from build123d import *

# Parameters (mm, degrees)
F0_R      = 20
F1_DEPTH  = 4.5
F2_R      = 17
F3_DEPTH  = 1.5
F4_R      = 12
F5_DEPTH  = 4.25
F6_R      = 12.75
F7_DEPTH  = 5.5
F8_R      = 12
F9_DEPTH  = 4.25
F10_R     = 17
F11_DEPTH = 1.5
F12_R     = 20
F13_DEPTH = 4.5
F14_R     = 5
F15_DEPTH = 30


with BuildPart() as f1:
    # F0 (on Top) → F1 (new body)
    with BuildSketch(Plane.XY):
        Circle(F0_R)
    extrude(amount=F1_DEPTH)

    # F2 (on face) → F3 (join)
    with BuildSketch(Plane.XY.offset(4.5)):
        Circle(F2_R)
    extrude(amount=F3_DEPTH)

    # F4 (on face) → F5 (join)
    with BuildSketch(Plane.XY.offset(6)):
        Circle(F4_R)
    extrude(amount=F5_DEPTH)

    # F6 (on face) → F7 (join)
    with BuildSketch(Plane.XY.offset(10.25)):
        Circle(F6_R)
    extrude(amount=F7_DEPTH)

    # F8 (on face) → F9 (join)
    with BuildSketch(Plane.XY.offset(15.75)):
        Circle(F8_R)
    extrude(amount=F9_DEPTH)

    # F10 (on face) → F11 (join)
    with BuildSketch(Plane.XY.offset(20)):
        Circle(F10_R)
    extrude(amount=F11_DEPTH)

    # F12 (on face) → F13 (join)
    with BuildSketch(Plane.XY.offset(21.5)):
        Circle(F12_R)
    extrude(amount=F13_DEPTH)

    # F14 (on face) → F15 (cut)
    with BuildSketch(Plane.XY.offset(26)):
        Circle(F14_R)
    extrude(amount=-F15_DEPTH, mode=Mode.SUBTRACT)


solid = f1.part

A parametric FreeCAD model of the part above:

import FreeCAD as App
import Part
import Sketcher
from FreeCAD import Vector

doc = App.newDocument("Part")
body = doc.addObject("PartDesign::Body", "Body")

sketch1 = body.newObject("Sketcher::SketchObject", "Sketch")
sketch1.AttachmentSupport = (doc.getObject("XY_Plane"), [""])
sketch1.MapMode = "FlatFace"
sketch1.addGeometry(Part.Circle(Vector(0, 0, 0), Vector(0, 0, 1), 20), False)
sketch1.addConstraint(Sketcher.Constraint("Coincident", 0, 3, -1, 1))
sketch1.addConstraint(Sketcher.Constraint("Diameter", 0, 40.0))
pad1 = body.newObject("PartDesign::Pad", "Pad")
pad1.Profile = sketch1
pad1.Length = 4.5

sketch2 = body.newObject("Sketcher::SketchObject", "Sketch001")
sketch2.AttachmentSupport = (doc.getObject("XY_Plane"), [""])
sketch2.MapMode = "FlatFace"
sketch2.AttachmentOffset = App.Placement(Vector(0, 0, 4.5), App.Rotation())
sketch2.addGeometry(Part.Circle(Vector(0, 0, 0), Vector(0, 0, 1), 17), False)
sketch2.addConstraint(Sketcher.Constraint("Coincident", 0, 3, -1, 1))
sketch2.addConstraint(Sketcher.Constraint("Diameter", 0, 34.0))
pad2 = body.newObject("PartDesign::Pad", "Pad001")
pad2.Profile = sketch2
pad2.Length = 1.5

sketch3 = body.newObject("Sketcher::SketchObject", "Sketch002")
sketch3.AttachmentSupport = (doc.getObject("XY_Plane"), [""])
sketch3.MapMode = "FlatFace"
sketch3.AttachmentOffset = App.Placement(Vector(0, 0, 6), App.Rotation())
sketch3.addGeometry(Part.Circle(Vector(0, 0, 0), Vector(0, 0, 1), 12), False)
sketch3.addConstraint(Sketcher.Constraint("Coincident", 0, 3, -1, 1))
sketch3.addConstraint(Sketcher.Constraint("Diameter", 0, 24.0))
pad3 = body.newObject("PartDesign::Pad", "Pad002")
pad3.Profile = sketch3
pad3.Length = 4.25

sketch4 = body.newObject("Sketcher::SketchObject", "Sketch003")
sketch4.AttachmentSupport = (doc.getObject("XY_Plane"), [""])
sketch4.MapMode = "FlatFace"
sketch4.AttachmentOffset = App.Placement(Vector(0, 0, 10.25), App.Rotation())
sketch4.addGeometry(Part.Circle(Vector(0, 0, 0), Vector(0, 0, 1), 12.75), False)
sketch4.addConstraint(Sketcher.Constraint("Coincident", 0, 3, -1, 1))
sketch4.addConstraint(Sketcher.Constraint("Diameter", 0, 25.5))
pad4 = body.newObject("PartDesign::Pad", "Pad003")
pad4.Profile = sketch4
pad4.Length = 5.5

sketch5 = body.newObject("Sketcher::SketchObject", "Sketch004")
sketch5.AttachmentSupport = (doc.getObject("XY_Plane"), [""])
sketch5.MapMode = "FlatFace"
sketch5.AttachmentOffset = App.Placement(Vector(0, 0, 15.75), App.Rotation())
sketch5.addGeometry(Part.Circle(Vector(0, 0, 0), Vector(0, 0, 1), 12), False)
sketch5.addConstraint(Sketcher.Constraint("Coincident", 0, 3, -1, 1))
sketch5.addConstraint(Sketcher.Constraint("Diameter", 0, 24.0))
pad5 = body.newObject("PartDesign::Pad", "Pad004")
pad5.Profile = sketch5
pad5.Length = 4.25

sketch6 = body.newObject("Sketcher::SketchObject", "Sketch005")
sketch6.AttachmentSupport = (doc.getObject("XY_Plane"), [""])
sketch6.MapMode = "FlatFace"
sketch6.AttachmentOffset = App.Placement(Vector(0, 0, 20), App.Rotation())
sketch6.addGeometry(Part.Circle(Vector(0, 0, 0), Vector(0, 0, 1), 17), False)
sketch6.addConstraint(Sketcher.Constraint("Coincident", 0, 3, -1, 1))
sketch6.addConstraint(Sketcher.Constraint("Diameter", 0, 34.0))
pad6 = body.newObject("PartDesign::Pad", "Pad005")
pad6.Profile = sketch6
pad6.Length = 1.5

sketch7 = body.newObject("Sketcher::SketchObject", "Sketch006")
sketch7.AttachmentSupport = (doc.getObject("XY_Plane"), [""])
sketch7.MapMode = "FlatFace"
sketch7.AttachmentOffset = App.Placement(Vector(0, 0, 21.5), App.Rotation())
sketch7.addGeometry(Part.Circle(Vector(0, 0, 0), Vector(0, 0, 1), 20), False)
sketch7.addConstraint(Sketcher.Constraint("Coincident", 0, 3, -1, 1))
sketch7.addConstraint(Sketcher.Constraint("Diameter", 0, 40.0))
pad7 = body.newObject("PartDesign::Pad", "Pad006")
pad7.Profile = sketch7
pad7.Length = 4.5

sketch8 = body.newObject("Sketcher::SketchObject", "Sketch007")
sketch8.AttachmentSupport = (doc.getObject("XY_Plane"), [""])
sketch8.MapMode = "FlatFace"
sketch8.AttachmentOffset = App.Placement(Vector(0, 0, 26), App.Rotation())
sketch8.addGeometry(Part.Circle(Vector(0, 0, 0), Vector(0, 0, 1), 5), False)
sketch8.addConstraint(Sketcher.Constraint("Coincident", 0, 3, -1, 1))
sketch8.addConstraint(Sketcher.Constraint("Diameter", 0, 10.0))
pocket1 = body.newObject("PartDesign::Pocket", "Pocket")
pocket1.Profile = sketch8
pocket1.Length = 30

doc.recompute()
